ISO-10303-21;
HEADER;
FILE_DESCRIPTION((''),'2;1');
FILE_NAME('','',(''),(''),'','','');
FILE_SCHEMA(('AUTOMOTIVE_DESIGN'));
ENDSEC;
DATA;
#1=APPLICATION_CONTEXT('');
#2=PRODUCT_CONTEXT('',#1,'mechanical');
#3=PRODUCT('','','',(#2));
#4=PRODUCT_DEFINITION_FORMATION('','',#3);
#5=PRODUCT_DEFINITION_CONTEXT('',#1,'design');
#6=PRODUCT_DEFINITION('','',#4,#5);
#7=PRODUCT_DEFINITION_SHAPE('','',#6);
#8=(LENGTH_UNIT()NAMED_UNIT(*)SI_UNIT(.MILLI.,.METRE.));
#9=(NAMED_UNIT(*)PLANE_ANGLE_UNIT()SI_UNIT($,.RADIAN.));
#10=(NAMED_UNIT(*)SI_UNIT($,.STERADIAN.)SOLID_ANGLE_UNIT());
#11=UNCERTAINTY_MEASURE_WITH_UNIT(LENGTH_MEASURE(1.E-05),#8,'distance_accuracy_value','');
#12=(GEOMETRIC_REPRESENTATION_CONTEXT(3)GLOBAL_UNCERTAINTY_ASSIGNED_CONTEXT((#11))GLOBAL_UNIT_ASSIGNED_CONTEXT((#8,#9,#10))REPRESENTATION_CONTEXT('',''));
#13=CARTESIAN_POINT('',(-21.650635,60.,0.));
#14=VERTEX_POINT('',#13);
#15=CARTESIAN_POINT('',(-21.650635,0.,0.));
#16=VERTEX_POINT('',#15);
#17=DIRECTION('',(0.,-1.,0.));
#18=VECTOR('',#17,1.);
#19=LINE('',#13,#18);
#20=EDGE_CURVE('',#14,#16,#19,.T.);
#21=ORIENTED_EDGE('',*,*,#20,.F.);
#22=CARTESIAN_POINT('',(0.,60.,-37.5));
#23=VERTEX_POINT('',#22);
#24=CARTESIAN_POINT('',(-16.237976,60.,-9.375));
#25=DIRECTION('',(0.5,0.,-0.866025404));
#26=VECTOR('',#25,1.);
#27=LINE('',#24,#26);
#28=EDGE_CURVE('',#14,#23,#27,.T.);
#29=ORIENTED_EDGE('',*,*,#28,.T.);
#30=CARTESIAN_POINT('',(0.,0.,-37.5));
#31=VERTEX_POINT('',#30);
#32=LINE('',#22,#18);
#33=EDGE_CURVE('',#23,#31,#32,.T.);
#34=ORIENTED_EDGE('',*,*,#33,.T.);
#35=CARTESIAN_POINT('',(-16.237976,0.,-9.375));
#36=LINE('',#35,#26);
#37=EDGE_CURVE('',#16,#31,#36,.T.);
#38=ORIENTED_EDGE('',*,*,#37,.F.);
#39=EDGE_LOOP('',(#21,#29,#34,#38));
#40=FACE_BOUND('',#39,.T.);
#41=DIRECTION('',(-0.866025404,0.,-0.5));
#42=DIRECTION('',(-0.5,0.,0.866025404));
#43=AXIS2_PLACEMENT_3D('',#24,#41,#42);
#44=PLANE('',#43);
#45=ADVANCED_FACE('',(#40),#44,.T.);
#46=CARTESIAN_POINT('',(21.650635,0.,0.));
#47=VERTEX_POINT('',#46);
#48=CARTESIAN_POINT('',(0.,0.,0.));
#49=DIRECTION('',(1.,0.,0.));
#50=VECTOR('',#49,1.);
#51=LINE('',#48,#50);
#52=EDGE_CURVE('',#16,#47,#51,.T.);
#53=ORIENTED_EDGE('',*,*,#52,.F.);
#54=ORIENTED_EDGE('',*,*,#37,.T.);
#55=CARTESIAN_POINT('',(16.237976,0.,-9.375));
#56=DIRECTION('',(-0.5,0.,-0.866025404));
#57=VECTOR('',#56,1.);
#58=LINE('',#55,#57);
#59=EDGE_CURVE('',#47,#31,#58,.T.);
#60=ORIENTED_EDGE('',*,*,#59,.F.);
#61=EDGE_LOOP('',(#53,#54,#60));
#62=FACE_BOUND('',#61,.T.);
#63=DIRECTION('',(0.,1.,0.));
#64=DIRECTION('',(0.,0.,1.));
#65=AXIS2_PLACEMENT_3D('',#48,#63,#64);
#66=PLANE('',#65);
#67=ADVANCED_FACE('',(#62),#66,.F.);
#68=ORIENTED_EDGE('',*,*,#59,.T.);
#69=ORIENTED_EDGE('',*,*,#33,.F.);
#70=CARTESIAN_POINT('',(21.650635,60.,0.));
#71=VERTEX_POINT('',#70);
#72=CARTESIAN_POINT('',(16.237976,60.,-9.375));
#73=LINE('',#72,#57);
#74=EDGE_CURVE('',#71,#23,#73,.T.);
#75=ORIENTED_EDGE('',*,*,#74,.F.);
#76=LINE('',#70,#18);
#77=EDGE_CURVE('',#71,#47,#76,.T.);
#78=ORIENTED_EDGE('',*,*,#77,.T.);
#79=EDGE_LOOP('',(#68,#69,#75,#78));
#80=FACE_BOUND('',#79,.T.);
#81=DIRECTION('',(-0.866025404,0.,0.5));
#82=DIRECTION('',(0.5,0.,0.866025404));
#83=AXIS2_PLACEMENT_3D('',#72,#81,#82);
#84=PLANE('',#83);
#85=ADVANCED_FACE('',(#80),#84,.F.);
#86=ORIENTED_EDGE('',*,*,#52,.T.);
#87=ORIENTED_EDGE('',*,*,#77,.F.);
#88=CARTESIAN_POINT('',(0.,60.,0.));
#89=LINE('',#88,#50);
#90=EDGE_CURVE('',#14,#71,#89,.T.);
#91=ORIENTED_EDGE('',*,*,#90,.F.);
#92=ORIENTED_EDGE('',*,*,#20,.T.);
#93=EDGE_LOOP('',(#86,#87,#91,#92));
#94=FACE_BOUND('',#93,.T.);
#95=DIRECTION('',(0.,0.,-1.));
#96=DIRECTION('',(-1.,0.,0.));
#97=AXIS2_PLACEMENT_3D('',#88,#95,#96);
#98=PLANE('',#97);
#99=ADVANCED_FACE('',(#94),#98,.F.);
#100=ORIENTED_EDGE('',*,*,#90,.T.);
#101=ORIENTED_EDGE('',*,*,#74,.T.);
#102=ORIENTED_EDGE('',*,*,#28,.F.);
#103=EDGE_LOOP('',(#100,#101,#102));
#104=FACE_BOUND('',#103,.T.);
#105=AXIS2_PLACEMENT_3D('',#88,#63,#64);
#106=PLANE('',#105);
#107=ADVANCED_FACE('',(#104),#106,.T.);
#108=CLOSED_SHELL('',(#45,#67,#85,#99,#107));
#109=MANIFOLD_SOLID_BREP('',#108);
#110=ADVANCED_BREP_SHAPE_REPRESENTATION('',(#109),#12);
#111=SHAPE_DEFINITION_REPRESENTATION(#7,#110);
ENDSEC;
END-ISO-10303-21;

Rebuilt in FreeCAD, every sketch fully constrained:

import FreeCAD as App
import Part
import Sketcher

V = App.Vector
Q = App.Units.Quantity


def add_polygon(sketch, points):
    """Adds a closed chain of lines whose ends are joined by coincident constraints."""
    first, n = sketch.GeometryCount, len(points)
    for a, b in zip(points, points[1:] + points[:1]):
        sketch.addGeometry(Part.LineSegment(App.Vector(*a, 0), App.Vector(*b, 0)), False)
    for i in range(n):
        sketch.addConstraint(Sketcher.Constraint("Coincident", first + i, 2, first + (i + 1) % n, 1))

doc = App.newDocument("Part")
params = doc.addObject("Spreadsheet::Sheet", "Params")
for row, (alias, value) in enumerate([
    ("pad1_length", "60 mm"),
], start=1):
    params.set(f"A{row}", alias)
    params.set(f"B{row}", "=" + value)
    params.setAlias(f"B{row}", alias)

body = doc.addObject("PartDesign::Body", "Body")

sketch1 = body.newObject("Sketcher::SketchObject", "Sketch")
sketch1.AttachmentSupport = (doc.getObject("XZ_Plane"), [""])
sketch1.MapMode = "FlatFace"
add_polygon(sketch1, [(0, -38), (-22, 0), (22, 0)])
sketch1.addConstraint([
    Sketcher.Constraint("Horizontal", 1),
    Sketcher.Constraint("Symmetric", 0, 2, 1, 2, -1, 1),
    Sketcher.Constraint("PointOnObject", 2, 2, -2),
    Sketcher.Constraint("Angle", 0, Q("120 deg")),
    Sketcher.Constraint("DistanceY", 2, 2, -1, 1, 37.5),
])
pad1 = body.newObject("PartDesign::Pad", "Pad")
pad1.Profile = sketch1
pad1.setExpression("Length", "Params.pad1_length")
pad1.Reversed = True

doc.recompute()
